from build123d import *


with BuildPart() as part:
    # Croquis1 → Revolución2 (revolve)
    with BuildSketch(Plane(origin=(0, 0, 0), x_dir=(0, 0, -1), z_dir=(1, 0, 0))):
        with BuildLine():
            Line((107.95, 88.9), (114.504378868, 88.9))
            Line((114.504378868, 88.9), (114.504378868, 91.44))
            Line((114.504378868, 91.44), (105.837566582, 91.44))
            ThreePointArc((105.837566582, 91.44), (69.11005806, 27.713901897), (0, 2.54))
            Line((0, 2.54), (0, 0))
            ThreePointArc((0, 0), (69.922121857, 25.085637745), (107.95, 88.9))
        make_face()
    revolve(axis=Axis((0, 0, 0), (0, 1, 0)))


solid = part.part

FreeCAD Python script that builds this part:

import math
import FreeCAD as App
import Part
import Sketcher
Q = App.Units.Quantity

doc = App.newDocument("Part")
params = doc.addObject("Spreadsheet::Sheet", "Params")
for row, (alias, value) in enumerate([
    ("sketch1_width", "0.1 in"),
    ("revolution_angle", "360 deg"),
], start=1):
    params.set(f"A{row}", alias)
    params.set(f"B{row}", "=" + value)
    params.setAlias(f"B{row}", alias)

body = doc.addObject("PartDesign::Body", "Body")

sketch1 = body.newObject("Sketcher::SketchObject", "Sketch")
sketch1.AttachmentSupport = (doc.getObject("YZ_Plane"), [""])
sketch1.MapMode = "FlatFace"
sketch1.addGeometry([
    Part.LineSegment(App.Vector(88.9, -108, 0), App.Vector(88.9, -114.5, 0)),
    Part.LineSegment(App.Vector(88.9, -114.5, 0), App.Vector(91.4, -114.5, 0)),
    Part.LineSegment(App.Vector(91.4, -114.5, 0), App.Vector(91.4, -105.8, 0)),
    Part.ArcOfCircle(Part.Circle(App.Vector(110, 0, 0), App.Vector(0, 0, 1), 107.5), math.radians(180), math.radians(260)),
    Part.LineSegment(App.Vector(2.5, 0, 0), App.Vector(0, 0, 0)),
    Part.ArcOfCircle(Part.Circle(App.Vector(110, 0, 0), App.Vector(0, 0, 1), 110), math.radians(180), math.radians(259)),
], False)
sketch1.addConstraint([
    Sketcher.Constraint("Coincident", 0, 2, 1, 1),
    Sketcher.Constraint("Coincident", 1, 2, 2, 1),
    Sketcher.Constraint("Coincident", 2, 2, 3, 2),
    Sketcher.Constraint("Coincident", 3, 1, 4, 1),
    Sketcher.Constraint("Coincident", 4, 2, 5, 1),
    Sketcher.Constraint("Coincident", 5, 2, 0, 1),
    Sketcher.Constraint("Vertical", 0),
    Sketcher.Constraint("Horizontal", 1),
    Sketcher.Constraint("Vertical", 2),
    Sketcher.Constraint("Horizontal", 4),
    Sketcher.Constraint("Coincident", 4, 2, -1, 1),
    Sketcher.Constraint("Coincident", 5, 3, 3, 3),
    Sketcher.Constraint("PointOnObject", 3, 3, -1),
    Sketcher.Constraint("Equal", 1, 4),
    Sketcher.Constraint("DistanceX", 1, 1, 1, 2, Q("0.1 in")),
    Sketcher.Constraint("DistanceX", -1, 1, 0, 2, Q("3.5 in")),
    Sketcher.Constraint("DistanceY", 5, 2, -1, 1, Q("4.25 in")),
    Sketcher.Constraint("DistanceY", 0, 2, 0, 1, Q("6.554379 mm")),
])
sketch1.setExpression("Constraints[14]", "Params.sketch1_width")
revolution = body.newObject("PartDesign::Revolution", "Revolution")
revolution.Profile = sketch1
revolution.ReferenceAxis = (sketch1, ["H_Axis"])
revolution.setExpression("Angle", "Params.revolution_angle")

doc.recompute()
